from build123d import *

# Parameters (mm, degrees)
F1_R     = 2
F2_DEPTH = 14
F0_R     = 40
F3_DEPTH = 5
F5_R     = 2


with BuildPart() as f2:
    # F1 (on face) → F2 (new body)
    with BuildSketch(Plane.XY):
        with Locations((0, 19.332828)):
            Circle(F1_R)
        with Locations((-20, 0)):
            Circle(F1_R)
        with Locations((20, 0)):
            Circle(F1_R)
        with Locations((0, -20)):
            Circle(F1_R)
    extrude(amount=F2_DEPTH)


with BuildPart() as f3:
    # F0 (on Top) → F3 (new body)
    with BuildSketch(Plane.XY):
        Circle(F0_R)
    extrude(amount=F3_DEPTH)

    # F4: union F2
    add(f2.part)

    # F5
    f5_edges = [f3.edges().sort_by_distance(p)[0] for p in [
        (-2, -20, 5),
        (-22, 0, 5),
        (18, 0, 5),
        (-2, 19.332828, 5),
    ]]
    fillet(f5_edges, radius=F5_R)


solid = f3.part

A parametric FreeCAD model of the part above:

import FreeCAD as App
import Part
import Sketcher


def edges_at(feature, points):
    """Names of the edges that pass closest to the given points."""
    edges = feature.Shape.Edges
    near = lambda p: min(range(len(edges)), key=lambda i: edges[i].distToShape(Part.Vertex(*p))[0])
    return sorted({f"Edge{near(p) + 1}" for p in points})

doc = App.newDocument("Part")
params = doc.addObject("Spreadsheet::Sheet", "Params")
for row, (alias, value) in enumerate([
    ("sketch1_diameter", "4 mm"),
    ("pad1_length", "14 mm"),
    ("sketch2_diameter", "80 mm"),
    ("pad2_length", "5 mm"),
    ("fillet_radius", "2 mm"),
], start=1):
    params.set(f"A{row}", alias)
    params.set(f"B{row}", "=" + value)
    params.setAlias(f"B{row}", alias)

body = doc.addObject("PartDesign::Body", "Body")
body.AllowCompound = True

sketch1 = body.newObject("Sketcher::SketchObject", "Sketch")
sketch1.AttachmentSupport = (doc.getObject("XY_Plane"), [""])
sketch1.MapMode = "FlatFace"
sketch1.addGeometry([
    Part.Circle(App.Vector(0, 19.332828, 0), App.Vector(0, 0, 1), 2),
    Part.Circle(App.Vector(-20, 0, 0), App.Vector(0, 0, 1), 2),
    Part.Circle(App.Vector(20, 0, 0), App.Vector(0, 0, 1), 2),
    Part.Circle(App.Vector(0, -20, 0), App.Vector(0, 0, 1), 2),
], False)
sketch1.addConstraint([
    Sketcher.Constraint("Equal", 0, 1),
    Sketcher.Constraint("Equal", 1, 2),
    Sketcher.Constraint("Equal", 2, 3),
    Sketcher.Constraint("Symmetric", 1, 3, 2, 3, -1, 1),
    Sketcher.Constraint("PointOnObject", 0, 3, -2),
    Sketcher.Constraint("PointOnObject", 1, 3, -1),
    Sketcher.Constraint("PointOnObject", 3, 3, -2),
    Sketcher.Constraint("Diameter", 0, 4.0),
    Sketcher.Constraint("DistanceX", 1, 3, -1, 1, 20.0),
    Sketcher.Constraint("DistanceY", 3, 3, -1, 1, 20.0),
    Sketcher.Constraint("DistanceY", -1, 1, 0, 3, 19.332828),
])
sketch1.setExpression("Constraints[7]", "Params.sketch1_diameter")
pad1 = body.newObject("PartDesign::Pad", "Pad")
pad1.Profile = sketch1
pad1.setExpression("Length", "Params.pad1_length")
body2 = doc.addObject("PartDesign::Body", "Body001")

sketch2 = body2.newObject("Sketcher::SketchObject", "Sketch001")
sketch2.AttachmentSupport = (doc.getObject("XY_Plane001"), [""])
sketch2.MapMode = "FlatFace"
sketch2.addGeometry(Part.Circle(App.Vector(0, 0, 0), App.Vector(0, 0, 1), 40), False)
sketch2.addConstraint([
    Sketcher.Constraint("Coincident", 0, 3, -1, 1),
    Sketcher.Constraint("Diameter", 0, 80.0),
])
sketch2.setExpression("Constraints[1]", "Params.sketch2_diameter")
pad2 = body2.newObject("PartDesign::Pad", "Pad001")
pad2.Profile = sketch2
pad2.setExpression("Length", "Params.pad2_length")
doc.recompute()

boolean = body2.newObject("PartDesign::Boolean", "Boolean")
boolean.Type = "Fuse"
boolean.addObjects([body])
doc.recompute()

fillet = body2.newObject("PartDesign::Fillet", "Fillet")
fillet.Base = (boolean, edges_at(boolean, [
    (-2, -20, 5),
    (-22, 0, 5),
    (18, 0, 5),
    (-2, 19.333, 5),
]))
fillet.setExpression("Radius", "Params.fillet_radius")

doc.recompute()
